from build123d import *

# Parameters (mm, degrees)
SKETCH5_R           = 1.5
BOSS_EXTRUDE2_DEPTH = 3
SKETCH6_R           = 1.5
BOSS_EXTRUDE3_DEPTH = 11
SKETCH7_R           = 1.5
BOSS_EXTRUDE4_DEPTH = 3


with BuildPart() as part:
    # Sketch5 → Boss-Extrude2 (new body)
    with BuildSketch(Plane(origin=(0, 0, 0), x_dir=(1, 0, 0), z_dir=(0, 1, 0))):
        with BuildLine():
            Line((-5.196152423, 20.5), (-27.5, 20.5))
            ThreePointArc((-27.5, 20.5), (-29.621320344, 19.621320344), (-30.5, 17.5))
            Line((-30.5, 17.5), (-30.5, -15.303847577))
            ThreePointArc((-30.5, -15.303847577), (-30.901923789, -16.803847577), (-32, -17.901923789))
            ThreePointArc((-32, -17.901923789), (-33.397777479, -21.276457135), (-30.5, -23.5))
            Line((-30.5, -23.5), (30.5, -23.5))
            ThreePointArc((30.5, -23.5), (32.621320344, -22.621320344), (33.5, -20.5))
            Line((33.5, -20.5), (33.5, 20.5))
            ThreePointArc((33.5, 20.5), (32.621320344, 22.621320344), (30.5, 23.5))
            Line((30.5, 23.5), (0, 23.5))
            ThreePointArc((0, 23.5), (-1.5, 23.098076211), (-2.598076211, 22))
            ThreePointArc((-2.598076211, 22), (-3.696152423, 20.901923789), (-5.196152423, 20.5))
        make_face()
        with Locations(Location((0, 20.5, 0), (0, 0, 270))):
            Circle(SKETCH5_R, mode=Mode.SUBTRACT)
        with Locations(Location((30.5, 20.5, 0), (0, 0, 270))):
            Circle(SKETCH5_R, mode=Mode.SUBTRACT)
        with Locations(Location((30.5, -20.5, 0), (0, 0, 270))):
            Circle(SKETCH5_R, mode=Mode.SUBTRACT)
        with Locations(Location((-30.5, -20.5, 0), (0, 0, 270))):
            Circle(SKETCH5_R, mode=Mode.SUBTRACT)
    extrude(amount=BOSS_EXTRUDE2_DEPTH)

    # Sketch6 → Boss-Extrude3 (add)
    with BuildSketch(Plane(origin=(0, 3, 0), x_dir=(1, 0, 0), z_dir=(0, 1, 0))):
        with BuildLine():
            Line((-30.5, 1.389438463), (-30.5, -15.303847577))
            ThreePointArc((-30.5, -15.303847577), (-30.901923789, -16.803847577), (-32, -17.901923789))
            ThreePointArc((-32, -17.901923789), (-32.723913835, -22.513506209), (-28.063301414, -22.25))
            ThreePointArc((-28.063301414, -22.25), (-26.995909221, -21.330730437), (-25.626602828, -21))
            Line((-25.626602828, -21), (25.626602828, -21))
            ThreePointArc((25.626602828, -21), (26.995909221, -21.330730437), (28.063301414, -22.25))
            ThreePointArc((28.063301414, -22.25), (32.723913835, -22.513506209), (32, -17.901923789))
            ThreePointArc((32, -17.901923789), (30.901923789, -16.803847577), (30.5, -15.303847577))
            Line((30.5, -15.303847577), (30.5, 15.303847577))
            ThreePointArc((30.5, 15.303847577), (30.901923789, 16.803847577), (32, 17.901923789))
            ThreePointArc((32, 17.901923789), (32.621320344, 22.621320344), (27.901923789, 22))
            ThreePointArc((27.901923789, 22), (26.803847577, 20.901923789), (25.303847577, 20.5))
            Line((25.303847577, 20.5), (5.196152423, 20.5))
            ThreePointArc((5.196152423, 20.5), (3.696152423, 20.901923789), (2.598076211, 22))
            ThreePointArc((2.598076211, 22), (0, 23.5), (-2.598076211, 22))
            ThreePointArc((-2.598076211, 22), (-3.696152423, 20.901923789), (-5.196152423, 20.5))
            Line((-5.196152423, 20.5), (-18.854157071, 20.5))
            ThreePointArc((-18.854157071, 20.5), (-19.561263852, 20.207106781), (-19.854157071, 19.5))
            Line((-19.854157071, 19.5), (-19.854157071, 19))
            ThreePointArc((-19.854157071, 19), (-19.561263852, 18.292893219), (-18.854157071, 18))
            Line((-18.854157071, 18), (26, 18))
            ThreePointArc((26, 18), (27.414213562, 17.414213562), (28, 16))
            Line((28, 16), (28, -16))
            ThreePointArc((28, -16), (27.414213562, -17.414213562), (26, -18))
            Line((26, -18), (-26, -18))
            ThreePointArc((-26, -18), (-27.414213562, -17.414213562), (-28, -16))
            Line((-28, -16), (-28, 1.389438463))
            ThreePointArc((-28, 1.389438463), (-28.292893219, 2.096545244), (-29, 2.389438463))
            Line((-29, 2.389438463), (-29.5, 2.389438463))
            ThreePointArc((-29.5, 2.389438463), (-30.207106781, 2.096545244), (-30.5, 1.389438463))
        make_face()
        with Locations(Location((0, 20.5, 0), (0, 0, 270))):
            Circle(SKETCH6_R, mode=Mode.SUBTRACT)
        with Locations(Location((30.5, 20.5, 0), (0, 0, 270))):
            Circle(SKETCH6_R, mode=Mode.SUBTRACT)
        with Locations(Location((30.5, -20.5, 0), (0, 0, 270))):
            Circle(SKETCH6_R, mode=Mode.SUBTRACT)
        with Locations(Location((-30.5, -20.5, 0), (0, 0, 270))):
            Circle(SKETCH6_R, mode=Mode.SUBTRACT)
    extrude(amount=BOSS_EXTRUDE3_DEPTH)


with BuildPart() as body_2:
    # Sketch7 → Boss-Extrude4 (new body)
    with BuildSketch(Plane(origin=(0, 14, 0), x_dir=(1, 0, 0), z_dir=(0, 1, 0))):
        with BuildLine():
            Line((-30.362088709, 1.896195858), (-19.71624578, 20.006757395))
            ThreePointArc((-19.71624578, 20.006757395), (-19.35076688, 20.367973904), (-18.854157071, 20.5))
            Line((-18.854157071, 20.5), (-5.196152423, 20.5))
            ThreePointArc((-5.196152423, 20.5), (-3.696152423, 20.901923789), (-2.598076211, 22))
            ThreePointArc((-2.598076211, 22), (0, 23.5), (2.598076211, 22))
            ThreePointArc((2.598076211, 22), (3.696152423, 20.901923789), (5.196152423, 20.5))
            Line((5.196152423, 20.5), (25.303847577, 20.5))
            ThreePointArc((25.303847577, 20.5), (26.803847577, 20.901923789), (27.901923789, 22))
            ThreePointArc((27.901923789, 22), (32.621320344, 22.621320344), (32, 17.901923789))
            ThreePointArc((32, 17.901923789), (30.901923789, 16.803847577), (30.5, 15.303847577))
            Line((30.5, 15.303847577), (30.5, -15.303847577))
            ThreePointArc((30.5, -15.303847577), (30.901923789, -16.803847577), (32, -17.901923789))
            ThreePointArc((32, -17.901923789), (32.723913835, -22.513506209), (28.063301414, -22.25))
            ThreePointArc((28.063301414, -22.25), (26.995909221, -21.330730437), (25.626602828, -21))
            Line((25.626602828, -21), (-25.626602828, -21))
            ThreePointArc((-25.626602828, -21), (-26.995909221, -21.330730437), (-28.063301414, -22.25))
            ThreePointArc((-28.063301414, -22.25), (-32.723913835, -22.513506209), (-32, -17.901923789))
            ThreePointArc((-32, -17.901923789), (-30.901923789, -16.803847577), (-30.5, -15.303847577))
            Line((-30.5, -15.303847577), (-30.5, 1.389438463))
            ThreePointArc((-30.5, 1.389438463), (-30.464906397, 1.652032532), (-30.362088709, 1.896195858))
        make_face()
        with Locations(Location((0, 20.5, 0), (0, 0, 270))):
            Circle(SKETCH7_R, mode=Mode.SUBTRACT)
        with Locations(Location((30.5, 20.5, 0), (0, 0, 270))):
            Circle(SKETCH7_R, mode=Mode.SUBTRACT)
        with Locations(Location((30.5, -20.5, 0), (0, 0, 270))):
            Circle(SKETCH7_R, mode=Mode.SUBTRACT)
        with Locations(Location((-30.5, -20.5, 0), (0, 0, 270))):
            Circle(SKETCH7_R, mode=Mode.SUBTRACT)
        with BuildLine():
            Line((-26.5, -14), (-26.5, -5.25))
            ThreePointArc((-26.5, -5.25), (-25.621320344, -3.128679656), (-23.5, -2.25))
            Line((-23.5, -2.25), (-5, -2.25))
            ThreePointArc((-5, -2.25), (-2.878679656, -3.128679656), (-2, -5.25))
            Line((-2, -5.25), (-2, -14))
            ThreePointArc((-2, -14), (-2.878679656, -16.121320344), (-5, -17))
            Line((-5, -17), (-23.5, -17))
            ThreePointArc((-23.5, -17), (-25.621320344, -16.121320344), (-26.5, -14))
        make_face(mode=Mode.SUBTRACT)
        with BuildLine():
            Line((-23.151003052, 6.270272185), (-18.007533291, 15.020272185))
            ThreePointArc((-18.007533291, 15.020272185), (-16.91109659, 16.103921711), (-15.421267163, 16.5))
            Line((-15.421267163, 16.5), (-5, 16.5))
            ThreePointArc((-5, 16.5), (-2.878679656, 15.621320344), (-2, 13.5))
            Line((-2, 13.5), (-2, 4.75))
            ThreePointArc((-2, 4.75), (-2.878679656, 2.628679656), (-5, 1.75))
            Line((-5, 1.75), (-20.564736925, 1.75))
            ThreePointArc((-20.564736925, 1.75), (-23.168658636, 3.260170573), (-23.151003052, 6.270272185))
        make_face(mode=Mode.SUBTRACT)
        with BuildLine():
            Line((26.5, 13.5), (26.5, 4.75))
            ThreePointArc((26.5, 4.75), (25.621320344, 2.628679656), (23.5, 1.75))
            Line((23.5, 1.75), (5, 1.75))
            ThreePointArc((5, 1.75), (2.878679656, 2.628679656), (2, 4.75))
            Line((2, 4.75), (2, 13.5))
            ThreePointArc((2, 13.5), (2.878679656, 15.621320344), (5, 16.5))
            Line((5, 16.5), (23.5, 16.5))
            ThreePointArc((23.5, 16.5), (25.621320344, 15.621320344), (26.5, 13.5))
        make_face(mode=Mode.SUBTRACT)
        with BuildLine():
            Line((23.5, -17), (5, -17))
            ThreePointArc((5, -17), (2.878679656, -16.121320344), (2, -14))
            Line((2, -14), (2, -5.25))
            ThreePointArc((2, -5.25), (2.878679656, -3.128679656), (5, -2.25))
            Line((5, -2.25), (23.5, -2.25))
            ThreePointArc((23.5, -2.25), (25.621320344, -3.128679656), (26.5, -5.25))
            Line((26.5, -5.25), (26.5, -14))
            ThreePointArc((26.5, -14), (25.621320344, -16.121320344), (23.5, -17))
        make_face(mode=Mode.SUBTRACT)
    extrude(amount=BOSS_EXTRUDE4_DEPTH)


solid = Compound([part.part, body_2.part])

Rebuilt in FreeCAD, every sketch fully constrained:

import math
import FreeCAD as App
import Part
import Sketcher

V = App.Vector
Q = App.Units.Quantity

doc = App.newDocument("Part")
body = doc.addObject("PartDesign::Body", "Body")

sketch1 = body.newObject("Sketcher::SketchObject", "Sketch")
sketch1.AttachmentSupport = (doc.getObject("XZ_Plane"), [""])
sketch1.MapMode = "FlatFace"
sketch1.addGeometry(Part.LineSegment(V(-5.2, -20.5, 0), V(-27.5, -20.5, 0)), False)
sketch1.addGeometry(Part.ArcOfCircle(Part.Circle(V(-27.5, -17.5, 0), V(0, 0, 1), 3), math.radians(180), math.radians(270)), False)
sketch1.addGeometry(Part.LineSegment(V(-30.5, -17.5, 0), V(-30.5, 15.3, 0)), False)
sketch1.addGeometry(Part.ArcOfCircle(Part.Circle(V(-33.5, 15.3, 0), V(0, 0, 1), 3), math.radians(0), math.radians(60)), False)
sketch1.addGeometry(Part.ArcOfCircle(Part.Circle(V(-30.5, 20.5, 0), V(0, 0, 1), 3), math.radians(90), math.radians(240)), False)
sketch1.addGeometry(Part.LineSegment(V(-30.5, 23.5, 0), V(30.5, 23.5, 0)), False)
sketch1.addGeometry(Part.ArcOfCircle(Part.Circle(V(30.5, 20.5, 0), V(0, 0, 1), 3), math.radians(0), math.radians(90)), False)
sketch1.addGeometry(Part.LineSegment(V(33.5, 20.5, 0), V(33.5, -20.5, 0)), False)
sketch1.addGeometry(Part.ArcOfCircle(Part.Circle(V(30.5, -20.5, 0), V(0, 0, 1), 3), math.radians(-90), math.radians(0)), False)
sketch1.addGeometry(Part.LineSegment(V(30.5, -23.5, 0), V(0, -23.5, 0)), False)
sketch1.addGeometry(Part.ArcOfCircle(Part.Circle(V(0, -20.5, 0), V(0, 0, 1), 3), math.radians(-150), math.radians(-90)), False)
sketch1.addGeometry(Part.ArcOfCircle(Part.Circle(V(-5.2, -23.5, 0), V(0, 0, 1), 3), math.radians(30), math.radians(90)), False)
sketch1.addGeometry(Part.Circle(V(-30.5, 20.5, 0), V(0, 0, 1), 1.5), False)
sketch1.addGeometry(Part.Circle(V(30.5, 20.5, 0), V(0, 0, 1), 1.5), False)
sketch1.addGeometry(Part.Circle(V(0, -20.5, 0), V(0, 0, 1), 1.5), False)
sketch1.addGeometry(Part.Circle(V(30.5, -20.5, 0), V(0, 0, 1), 1.5), False)
sketch1.addConstraint(Sketcher.Constraint("Tangent", 0, 2, 1, 2))
sketch1.addConstraint(Sketcher.Constraint("Tangent", 1, 1, 2, 1))
sketch1.addConstraint(Sketcher.Constraint("Tangent", 2, 2, 3, 1))
sketch1.addConstraint(Sketcher.Constraint("Tangent", 3, 2, 4, 2))
sketch1.addConstraint(Sketcher.Constraint("Tangent", 4, 1, 5, 1))
sketch1.addConstraint(Sketcher.Constraint("Tangent", 5, 2, 6, 2))
sketch1.addConstraint(Sketcher.Constraint("Tangent", 6, 1, 7, 1))
sketch1.addConstraint(Sketcher.Constraint("Tangent", 7, 2, 8, 2))
sketch1.addConstraint(Sketcher.Constraint("Tangent", 8, 1, 9, 1))
sketch1.addConstraint(Sketcher.Constraint("Tangent", 9, 2, 10, 2))
sketch1.addConstraint(Sketcher.Constraint("Tangent", 10, 1, 11, 1))
sketch1.addConstraint(Sketcher.Constraint("Tangent", 11, 2, 0, 1))
sketch1.addConstraint(Sketcher.Constraint("Horizontal", 0))
sketch1.addConstraint(Sketcher.Constraint("Vertical", 2))
sketch1.addConstraint(Sketcher.Constraint("Horizontal", 5))
sketch1.addConstraint(Sketcher.Constraint("Vertical", 7))
sketch1.addConstraint(Sketcher.Constraint("Horizontal", 9))
sketch1.addConstraint(Sketcher.Constraint("Coincident", 12, 3, 4, 3))
sketch1.addConstraint(Sketcher.Constraint("Coincident", 13, 3, 6, 3))
sketch1.addConstraint(Sketcher.Constraint("Coincident", 14, 3, 10, 3))
sketch1.addConstraint(Sketcher.Constraint("Coincident", 15, 3, 8, 3))
sketch1.addConstraint(Sketcher.Constraint("Equal", 1, 3))
sketch1.addConstraint(Sketcher.Constraint("Equal", 3, 4))
sketch1.addConstraint(Sketcher.Constraint("Equal", 4, 6))
sketch1.addConstraint(Sketcher.Constraint("Equal", 6, 8))
sketch1.addConstraint(Sketcher.Constraint("Equal", 8, 10))
sketch1.addConstraint(Sketcher.Constraint("Equal", 10, 11))
sketch1.addConstraint(Sketcher.Constraint("Equal", 12, 13))
sketch1.addConstraint(Sketcher.Constraint("Equal", 13, 14))
sketch1.addConstraint(Sketcher.Constraint("Equal", 14, 15))
sketch1.addConstraint(Sketcher.Constraint("Symmetric", 4, 3, 8, 3, -1, 1))
sketch1.addConstraint(Sketcher.Constraint("PointOnObject", 10, 3, -2))
sketch1.addConstraint(Sketcher.Constraint("Horizontal", 15, 3, 0, 2))
sketch1.addConstraint(Sketcher.Constraint("Vertical", 12, 3, 1, 1))
sketch1.addConstraint(Sketcher.Constraint("Diameter", 12, Q("3 mm")))
sketch1.addConstraint(Sketcher.Constraint("Radius", 1, Q("3 mm")))
sketch1.addConstraint(Sketcher.Constraint("DistanceX", 5, 1, 5, 2, Q("61 mm")))
sketch1.addConstraint(Sketcher.Constraint("DistanceY", 7, 2, 7, 1, Q("41 mm")))
pad1 = body.newObject("PartDesign::Pad", "Pad")
pad1.Profile = sketch1
pad1.Length = 3
pad1.Reversed = True

sketch2 = body.newObject("Sketcher::SketchObject", "Sketch001")
sketch2.AttachmentSupport = (doc.getObject("XZ_Plane"), [""])
sketch2.MapMode = "FlatFace"
sketch2.AttachmentOffset = App.Placement(V(0, 0, -3), App.Rotation())
sketch2.addGeometry(Part.LineSegment(V(-30.5, -1.4, 0), V(-30.5, 15.3, 0)), False)
sketch2.addGeometry(Part.ArcOfCircle(Part.Circle(V(-33.5, 15.3, 0), V(0, 0, 1), 3), math.radians(0), math.radians(60)), False)
sketch2.addGeometry(Part.ArcOfCircle(Part.Circle(V(-30.5, 20.5, 0), V(0, 0, 1), 3), math.radians(36), math.radians(240)), False)
sketch2.addGeometry(Part.ArcOfCircle(Part.Circle(V(-25.6, 24, 0), V(0, 0, 1), 3), math.radians(-144), math.radians(-90)), False)
sketch2.addGeometry(Part.LineSegment(V(-25.6, 21, 0), V(25.6, 21, 0)), False)
sketch2.addGeometry(Part.ArcOfCircle(Part.Circle(V(25.6, 24, 0), V(0, 0, 1), 3), math.radians(-90), math.radians(-36)), False)
sketch2.addGeometry(Part.ArcOfCircle(Part.Circle(V(30.5, 20.5, 0), V(0, 0, 1), 3), math.radians(-60), math.radians(144)), False)
sketch2.addGeometry(Part.ArcOfCircle(Part.Circle(V(33.5, 15.3, 0), V(0, 0, 1), 3), math.radians(120), math.radians(180)), False)
sketch2.addGeometry(Part.LineSegment(V(30.5, 15.3, 0), V(30.5, -15.3, 0)), False)
sketch2.addGeometry(Part.ArcOfCircle(Part.Circle(V(33.5, -15.3, 0), V(0, 0, 1), 3), math.radians(-180), math.radians(-120)), False)
sketch2.addGeometry(Part.ArcOfCircle(Part.Circle(V(30.5, -20.5, 0), V(0, 0, 1), 3), math.radians(-150), math.radians(60)), False)
sketch2.addGeometry(Part.ArcOfCircle(Part.Circle(V(25.3, -23.5, 0), V(0, 0, 1), 3), math.radians(30), math.radians(90)), False)
sketch2.addGeometry(Part.LineSegment(V(25.3, -20.5, 0), V(5.2, -20.5, 0)), False)
sketch2.addGeometry(Part.ArcOfCircle(Part.Circle(V(5.2, -23.5, 0), V(0, 0, 1), 3), math.radians(90), math.radians(150)), False)
sketch2.addGeometry(Part.ArcOfCircle(Part.Circle(V(0, -20.5, 0), V(0, 0, 1), 3), math.radians(-150), math.radians(-30)), False)
sketch2.addGeometry(Part.ArcOfCircle(Part.Circle(V(-5.2, -23.5, 0), V(0, 0, 1), 3), math.radians(30), math.radians(90)), False)
sketch2.addGeometry(Part.LineSegment(V(-5.2, -20.5, 0), V(-18.9, -20.5, 0)), False)
sketch2.addGeometry(Part.ArcOfCircle(Part.Circle(V(-18.9, -19.5, 0), V(0, 0, 1), 1), math.radians(-180), math.radians(-90)), False)
sketch2.addGeometry(Part.LineSegment(V(-19.9, -19.5, 0), V(-19.9, -19, 0)), False)
sketch2.addGeometry(Part.ArcOfCircle(Part.Circle(V(-18.9, -19, 0), V(0, 0, 1), 1), math.radians(90), math.radians(180)), False)
sketch2.addGeometry(Part.LineSegment(V(-18.9, -18, 0), V(26, -18, 0)), False)
sketch2.addGeometry(Part.ArcOfCircle(Part.Circle(V(26, -16, 0), V(0, 0, 1), 2), math.radians(-90), math.radians(0)), False)
sketch2.addGeometry(Part.LineSegment(V(28, -16, 0), V(28, 16, 0)), False)
sketch2.addGeometry(Part.ArcOfCircle(Part.Circle(V(26, 16, 0), V(0, 0, 1), 2), math.radians(0), math.radians(90)), False)
sketch2.addGeometry(Part.LineSegment(V(26, 18, 0), V(-26, 18, 0)), False)
sketch2.addGeometry(Part.ArcOfCircle(Part.Circle(V(-26, 16, 0), V(0, 0, 1), 2), math.radians(90), math.radians(180)), False)
sketch2.addGeometry(Part.LineSegment(V(-28, 16, 0), V(-28, -1.4, 0)), False)
sketch2.addGeometry(Part.ArcOfCircle(Part.Circle(V(-29, -1.4, 0), V(0, 0, 1), 1), math.radians(-90), math.radians(0)), False)
sketch2.addGeometry(Part.LineSegment(V(-29, -2.4, 0), V(-29.5, -2.4, 0)), False)
sketch2.addGeometry(Part.ArcOfCircle(Part.Circle(V(-29.5, -1.4, 0), V(0, 0, 1), 1), math.radians(-180), math.radians(-90)), False)
sketch2.addGeometry(Part.Circle(V(-30.5, 20.5, 0), V(0, 0, 1), 1.5), False)
sketch2.addGeometry(Part.Circle(V(30.5, 20.5, 0), V(0, 0, 1), 1.5), False)
sketch2.addGeometry(Part.Circle(V(0, -20.5, 0), V(0, 0, 1), 1.5), False)
sketch2.addGeometry(Part.Circle(V(30.5, -20.5, 0), V(0, 0, 1), 1.5), False)
sketch2.addConstraint(Sketcher.Constraint("Tangent", 0, 2, 1, 1))
sketch2.addConstraint(Sketcher.Constraint("Tangent", 1, 2, 2, 2))
sketch2.addConstraint(Sketcher.Constraint("Tangent", 2, 1, 3, 1))
sketch2.addConstraint(Sketcher.Constraint("Tangent", 3, 2, 4, 1))
sketch2.addConstraint(Sketcher.Constraint("Tangent", 4, 2, 5, 1))
sketch2.addConstraint(Sketcher.Constraint("Tangent", 5, 2, 6, 2))
sketch2.addConstraint(Sketcher.Constraint("Tangent", 6, 1, 7, 1))
sketch2.addConstraint(Sketcher.Constraint("Tangent", 7, 2, 8, 1))
sketch2.addConstraint(Sketcher.Constraint("Tangent", 8, 2, 9, 1))
sketch2.addConstraint(Sketcher.Constraint("Tangent", 9, 2, 10, 2))
sketch2.addConstraint(Sketcher.Constraint("Tangent", 10, 1, 11, 1))
sketch2.addConstraint(Sketcher.Constraint("Tangent", 11, 2, 12, 1))
sketch2.addConstraint(Sketcher.Constraint("Tangent", 12, 2, 13, 1))
sketch2.addConstraint(Sketcher.Constraint("Tangent", 13, 2, 14, 2))
sketch2.addConstraint(Sketcher.Constraint("Tangent", 14, 1, 15, 1))
sketch2.addConstraint(Sketcher.Constraint("Tangent", 15, 2, 16, 1))
sketch2.addConstraint(Sketcher.Constraint("Tangent", 16, 2, 17, 2))
sketch2.addConstraint(Sketcher.Constraint("Tangent", 17, 1, 18, 1))
sketch2.addConstraint(Sketcher.Constraint("Tangent", 18, 2, 19, 2))
sketch2.addConstraint(Sketcher.Constraint("Tangent", 19, 1, 20, 1))
sketch2.addConstraint(Sketcher.Constraint("Tangent", 20, 2, 21, 1))
sketch2.addConstraint(Sketcher.Constraint("Tangent", 21, 2, 22, 1))
sketch2.addConstraint(Sketcher.Constraint("Tangent", 22, 2, 23, 1))
sketch2.addConstraint(Sketcher.Constraint("Tangent", 23, 2, 24, 1))
sketch2.addConstraint(Sketcher.Constraint("Tangent", 24, 2, 25, 1))
sketch2.addConstraint(Sketcher.Constraint("Tangent", 25, 2, 26, 1))
sketch2.addConstraint(Sketcher.Constraint("Tangent", 26, 2, 27, 2))
sketch2.addConstraint(Sketcher.Constraint("Tangent", 27, 1, 28, 1))
sketch2.addConstraint(Sketcher.Constraint("Tangent", 28, 2, 29, 2))
sketch2.addConstraint(Sketcher.Constraint("Tangent", 29, 1, 0, 1))
sketch2.addConstraint(Sketcher.Constraint("Vertical", 0))
sketch2.addConstraint(Sketcher.Constraint("Horizontal", 4))
sketch2.addConstraint(Sketcher.Constraint("Vertical", 8))
sketch2.addConstraint(Sketcher.Constraint("Horizontal", 12))
sketch2.addConstraint(Sketcher.Constraint("Horizontal", 16))
sketch2.addConstraint(Sketcher.Constraint("Vertical", 18))
sketch2.addConstraint(Sketcher.Constraint("Horizontal", 20))
sketch2.addConstraint(Sketcher.Constraint("Vertical", 22))
sketch2.addConstraint(Sketcher.Constraint("Horizontal", 24))
sketch2.addConstraint(Sketcher.Constraint("Vertical", 26))
sketch2.addConstraint(Sketcher.Constraint("Horizontal", 28))
sketch2.addConstraint(Sketcher.Constraint("Coincident", 30, 3, 2, 3))
sketch2.addConstraint(Sketcher.Constraint("Coincident", 31, 3, 6, 3))
sketch2.addConstraint(Sketcher.Constraint("Coincident", 32, 3, 14, 3))
sketch2.addConstraint(Sketcher.Constraint("Coincident", 33, 3, 10, 3))
sketch2.addConstraint(Sketcher.Constraint("Equal", 1, 2))
sketch2.addConstraint(Sketcher.Constraint("Equal", 2, 3))
sketch2.addConstraint(Sketcher.Constraint("Equal", 3, 5))
sketch2.addConstraint(Sketcher.Constraint("Equal", 5, 6))
sketch2.addConstraint(Sketcher.Constraint("Equal", 6, 7))
sketch2.addConstraint(Sketcher.Constraint("Equal", 7, 9))
sketch2.addConstraint(Sketcher.Constraint("Equal", 9, 10))
sketch2.addConstraint(Sketcher.Constraint("Equal", 10, 11))
sketch2.addConstraint(Sketcher.Constraint("Equal", 11, 13))
sketch2.addConstraint(Sketcher.Constraint("Equal", 13, 14))
sketch2.addConstraint(Sketcher.Constraint("Equal", 14, 15))
sketch2.addConstraint(Sketcher.Constraint("Equal", 17, 19))
sketch2.addConstraint(Sketcher.Constraint("Equal", 21, 23))
sketch2.addConstraint(Sketcher.Constraint("Equal", 23, 25))
sketch2.addConstraint(Sketcher.Constraint("Equal", 19, 27))
sketch2.addConstraint(Sketcher.Constraint("Equal", 27, 29))
sketch2.addConstraint(Sketcher.Constraint("Equal", 30, 31))
sketch2.addConstraint(Sketcher.Constraint("Equal", 31, 32))
sketch2.addConstraint(Sketcher.Constraint("Equal", 32, 33))
sketch2.addConstraint(Sketcher.Constraint("Symmetric", 1, 3, 9, 3, -1, 1))
sketch2.addConstraint(Sketcher.Constraint("Symmetric", 21, 3, 25, 3, -1, 1))
sketch2.addConstraint(Sketcher.Constraint("Symmetric", 2, 3, 6, 3, -2))
sketch2.addConstraint(Sketcher.Constraint("Symmetric", 13, 3, 15, 3, -2))
sketch2.addConstraint(Sketcher.Constraint("Horizontal", 10, 3, 14, 3))
sketch2.addConstraint(Sketcher.Constraint("Horizontal", 33, 3, 11, 2))
sketch2.addConstraint(Sketcher.Constraint("Vertical", 6, 3, 10, 3))
sketch2.addConstraint(Sketcher.Constraint("Vertical", 30, 3, 0, 2))
sketch2.addConstraint(Sketcher.Constraint("Equal", 28, 18))
sketch2.addConstraint(Sketcher.Constraint("Diameter", 30, Q("3 mm")))
sketch2.addConstraint(Sketcher.Constraint("Radius", 1, Q("3 mm")))
sketch2.addConstraint(Sketcher.Constraint("Radius", 17, Q("1 mm")))
sketch2.addConstraint(Sketcher.Constraint("Radius", 21, Q("2 mm")))
sketch2.addConstraint(Sketcher.Constraint("DistanceX", 24, 2, 24, 1, Q("52 mm")))
sketch2.addConstraint(Sketcher.Constraint("DistanceY", 22, 1, 22, 2, Q("32 mm")))
sketch2.addConstraint(Sketcher.Constraint("DistanceX", 28, 2, 28, 1, Q("0.5 mm")))
sketch2.addConstraint(Sketcher.Constraint("DistanceY", -1, 1, 3, 3, Q("24 mm")))
sketch2.addConstraint(Sketcher.Constraint("DistanceY", 26, 2, 26, 1, Q("17.389438 mm")))
sketch2.addConstraint(Sketcher.Constraint("DistanceX", 16, 2, 16, 1, Q("13.658005 mm")))
pad2 = body.newObject("PartDesign::Pad", "Pad001")
pad2.Profile = sketch2
pad2.Length = 11
pad2.Reversed = True
body2 = doc.addObject("PartDesign::Body", "Body001")

sketch3 = body2.newObject("Sketcher::SketchObject", "Sketch002")
sketch3.AttachmentSupport = (doc.getObject("XZ_Plane001"), [""])
sketch3.MapMode = "FlatFace"
sketch3.AttachmentOffset = App.Placement(V(0, 0, -14), App.Rotation())
sketch3.addGeometry(Part.LineSegment(V(-19.7, -20, 0), V(-30.4, -1.9, 0)), False)
sketch3.addGeometry(Part.ArcOfCircle(Part.Circle(V(-29.5, -1.4, 0), V(0, 0, 1), 1), math.radians(180), math.radians(210)), False)
sketch3.addGeometry(Part.LineSegment(V(-30.5, -1.4, 0), V(-30.5, 15.3, 0)), False)
sketch3.addGeometry(Part.ArcOfCircle(Part.Circle(V(-33.5, 15.3, 0), V(0, 0, 1), 3), math.radians(0), math.radians(60)), False)
sketch3.addGeometry(Part.ArcOfCircle(Part.Circle(V(-30.5, 20.5, 0), V(0, 0, 1), 3), math.radians(36), math.radians(240)), False)
sketch3.addGeometry(Part.ArcOfCircle(Part.Circle(V(-25.6, 24, 0), V(0, 0, 1), 3), math.radians(-144), math.radians(-90)), False)
sketch3.addGeometry(Part.LineSegment(V(-25.6, 21, 0), V(25.6, 21, 0)), False)
sketch3.addGeometry(Part.ArcOfCircle(Part.Circle(V(25.6, 24, 0), V(0, 0, 1), 3), math.radians(-90), math.radians(-36)), False)
sketch3.addGeometry(Part.ArcOfCircle(Part.Circle(V(30.5, 20.5, 0), V(0, 0, 1), 3), math.radians(-60), math.radians(144)), False)
sketch3.addGeometry(Part.ArcOfCircle(Part.Circle(V(33.5, 15.3, 0), V(0, 0, 1), 3), math.radians(120), math.radians(180)), False)
sketch3.addGeometry(Part.LineSegment(V(30.5, 15.3, 0), V(30.5, -15.3, 0)), False)
sketch3.addGeometry(Part.ArcOfCircle(Part.Circle(V(33.5, -15.3, 0), V(0, 0, 1), 3), math.radians(-180), math.radians(-120)), False)
sketch3.addGeometry(Part.ArcOfCircle(Part.Circle(V(30.5, -20.5, 0), V(0, 0, 1), 3), math.radians(-150), math.radians(60)), False)
sketch3.addGeometry(Part.ArcOfCircle(Part.Circle(V(25.3, -23.5, 0), V(0, 0, 1), 3), math.radians(30), math.radians(90)), False)
sketch3.addGeometry(Part.LineSegment(V(25.3, -20.5, 0), V(5.2, -20.5, 0)), False)
sketch3.addGeometry(Part.ArcOfCircle(Part.Circle(V(5.2, -23.5, 0), V(0, 0, 1), 3), math.radians(90), math.radians(150)), False)
sketch3.addGeometry(Part.ArcOfCircle(Part.Circle(V(0, -20.5, 0), V(0, 0, 1), 3), math.radians(-150), math.radians(-30)), False)
sketch3.addGeometry(Part.ArcOfCircle(Part.Circle(V(-5.2, -23.5, 0), V(0, 0, 1), 3), math.radians(30), math.radians(90)), False)
sketch3.addGeometry(Part.LineSegment(V(-5.2, -20.5, 0), V(-18.9, -20.5, 0)), False)
sketch3.addGeometry(Part.ArcOfCircle(Part.Circle(V(-18.9, -19.5, 0), V(0, 0, 1), 1), math.radians(-150), math.radians(-90)), False)
sketch3.addGeometry(Part.Circle(V(30.5, 20.5, 0), V(0, 0, 1), 1.5), False)
sketch3.addGeometry(Part.LineSegment(V(23.5, 17, 0), V(5, 17, 0)), False)
sketch3.addGeometry(Part.ArcOfCircle(Part.Circle(V(5, 14, 0), V(0, 0, 1), 3), math.radians(90), math.radians(180)), False)
sketch3.addGeometry(Part.LineSegment(V(2, 14, 0), V(2, 5.2, 0)), False)
sketch3.addGeometry(Part.ArcOfCircle(Part.Circle(V(5, 5.2, 0), V(0, 0, 1), 3), math.radians(180), math.radians(270)), False)
sketch3.addGeometry(Part.LineSegment(V(5, 2.2, 0), V(23.5, 2.2, 0)), False)
sketch3.addGeometry(Part.ArcOfCircle(Part.Circle(V(23.5, 5.2, 0), V(0, 0, 1), 3), math.radians(-90), math.radians(0)), False)
sketch3.addGeometry(Part.LineSegment(V(26.5, 5.2, 0), V(26.5, 14, 0)), False)
sketch3.addGeometry(Part.ArcOfCircle(Part.Circle(V(23.5, 14, 0), V(0, 0, 1), 3), math.radians(0), math.radians(90)), False)
sketch3.addGeometry(Part.Circle(V(-30.5, 20.5, 0), V(0, 0, 1), 1.5), False)
sketch3.addGeometry(Part.LineSegment(V(-26.5, 14, 0), V(-26.5, 5.2, 0)), False)
sketch3.addGeometry(Part.ArcOfCircle(Part.Circle(V(-23.5, 5.2, 0), V(0, 0, 1), 3), math.radians(180), math.radians(270)), False)
sketch3.addGeometry(Part.LineSegment(V(-23.5, 2.2, 0), V(-5, 2.2, 0)), False)
sketch3.addGeometry(Part.ArcOfCircle(Part.Circle(V(-5, 5.2, 0), V(0, 0, 1), 3), math.radians(-90), math.radians(0)), False)
sketch3.addGeometry(Part.LineSegment(V(-2, 5.2, 0), V(-2, 14, 0)), False)
sketch3.addGeometry(Part.ArcOfCircle(Part.Circle(V(-5, 14, 0), V(0, 0, 1), 3), math.radians(0), math.radians(90)), False)
sketch3.addGeometry(Part.LineSegment(V(-5, 17, 0), V(-23.5, 17, 0)), False)
sketch3.addGeometry(Part.ArcOfCircle(Part.Circle(V(-23.5, 14, 0), V(0, 0, 1), 3), math.radians(90), math.radians(180)), False)
sketch3.addGeometry(Part.LineSegment(V(26.5, -13.5, 0), V(26.5, -4.8, 0)), False)
sketch3.addGeometry(Part.ArcOfCircle(Part.Circle(V(23.5, -4.7, 0), V(0, 0, 1), 3), math.radians(0), math.radians(90)), False)
sketch3.addGeometry(Part.LineSegment(V(23.5, -1.8, 0), V(5, -1.8, 0)), False)
sketch3.addGeometry(Part.ArcOfCircle(Part.Circle(V(5, -4.7, 0), V(0, 0, 1), 3), math.radians(90), math.radians(180)), False)
sketch3.addGeometry(Part.LineSegment(V(2, -4.8, 0), V(2, -13.5, 0)), False)
sketch3.addGeometry(Part.ArcOfCircle(Part.Circle(V(5, -13.5, 0), V(0, 0, 1), 3), math.radians(180), math.radians(270)), False)
sketch3.addGeometry(Part.LineSegment(V(5, -16.5, 0), V(23.5, -16.5, 0)), False)
sketch3.addGeometry(Part.ArcOfCircle(Part.Circle(V(23.5, -13.5, 0), V(0, 0, 1), 3), math.radians(-90), math.radians(0)), False)
sketch3.addGeometry(Part.Circle(V(30.5, -20.5, 0), V(0, 0, 1), 1.5), False)
sketch3.addGeometry(Part.LineSegment(V(-23.2, -6.3, 0), V(-18, -15, 0)), False)
sketch3.addGeometry(Part.ArcOfCircle(Part.Circle(V(-15.4, -13.5, 0), V(0, 0, 1), 3), math.radians(-150), math.radians(-90)), False)
sketch3.addGeometry(Part.LineSegment(V(-15.4, -16.5, 0), V(-5, -16.5, 0)), False)
sketch3.addGeometry(Part.ArcOfCircle(Part.Circle(V(-5, -13.5, 0), V(0, 0, 1), 3), math.radians(-90), math.radians(0)), False)
sketch3.addGeometry(Part.LineSegment(V(-2, -13.5, 0), V(-2, -4.8, 0)), False)
sketch3.addGeometry(Part.ArcOfCircle(Part.Circle(V(-5, -4.7, 0), V(0, 0, 1), 3), math.radians(0), math.radians(90)), False)
sketch3.addGeometry(Part.LineSegment(V(-5, -1.8, 0), V(-20.6, -1.8, 0)), False)
sketch3.addGeometry(Part.ArcOfCircle(Part.Circle(V(-20.6, -4.8, 0), V(0, 0, 1), 3), math.radians(90), math.radians(210)), False)
sketch3.addGeometry(Part.Circle(V(0, -20.5, 0), V(0, 0, 1), 1.5), False)
sketch3.addConstraint(Sketcher.Constraint("Tangent", 0, 2, 1, 2))
sketch3.addConstraint(Sketcher.Constraint("Tangent", 1, 1, 2, 1))
sketch3.addConstraint(Sketcher.Constraint("Tangent", 2, 2, 3, 1))
sketch3.addConstraint(Sketcher.Constraint("Tangent", 3, 2, 4, 2))
sketch3.addConstraint(Sketcher.Constraint("Tangent", 4, 1, 5, 1))
sketch3.addConstraint(Sketcher.Constraint("Tangent", 5, 2, 6, 1))
sketch3.addConstraint(Sketcher.Constraint("Tangent", 6, 2, 7, 1))
sketch3.addConstraint(Sketcher.Constraint("Tangent", 7, 2, 8, 2))
sketch3.addConstraint(Sketcher.Constraint("Tangent", 8, 1, 9, 1))
sketch3.addConstraint(Sketcher.Constraint("Tangent", 9, 2, 10, 1))
sketch3.addConstraint(Sketcher.Constraint("Tangent", 10, 2, 11, 1))
sketch3.addConstraint(Sketcher.Constraint("Tangent", 11, 2, 12, 2))
sketch3.addConstraint(Sketcher.Constraint("Tangent", 12, 1, 13, 1))
sketch3.addConstraint(Sketcher.Constraint("Tangent", 13, 2, 14, 1))
sketch3.addConstraint(Sketcher.Constraint("Tangent", 14, 2, 15, 1))
sketch3.addConstraint(Sketcher.Constraint("Tangent", 15, 2, 16, 2))
sketch3.addConstraint(Sketcher.Constraint("Tangent", 16, 1, 17, 1))
sketch3.addConstraint(Sketcher.Constraint("Tangent", 17, 2, 18, 1))
sketch3.addConstraint(Sketcher.Constraint("Tangent", 18, 2, 19, 2))
sketch3.addConstraint(Sketcher.Constraint("Tangent", 19, 1, 0, 1))
sketch3.addConstraint(Sketcher.Constraint("Tangent", 21, 2, 22, 1))
sketch3.addConstraint(Sketcher.Constraint("Tangent", 22, 2, 23, 1))
sketch3.addConstraint(Sketcher.Constraint("Tangent", 23, 2, 24, 1))
sketch3.addConstraint(Sketcher.Constraint("Tangent", 24, 2, 25, 1))
sketch3.addConstraint(Sketcher.Constraint("Tangent", 25, 2, 26, 1))
sketch3.addConstraint(Sketcher.Constraint("Tangent", 26, 2, 27, 1))
sketch3.addConstraint(Sketcher.Constraint("Tangent", 27, 2, 28, 1))
sketch3.addConstraint(Sketcher.Constraint("Tangent", 28, 2, 21, 1))
sketch3.addConstraint(Sketcher.Constraint("Tangent", 30, 2, 31, 1))
sketch3.addConstraint(Sketcher.Constraint("Tangent", 31, 2, 32, 1))
sketch3.addConstraint(Sketcher.Constraint("Tangent", 32, 2, 33, 1))
sketch3.addConstraint(Sketcher.Constraint("Tangent", 33, 2, 34, 1))
sketch3.addConstraint(Sketcher.Constraint("Tangent", 34, 2, 35, 1))
sketch3.addConstraint(Sketcher.Constraint("Tangent", 35, 2, 36, 1))
sketch3.addConstraint(Sketcher.Constraint("Tangent", 36, 2, 37, 1))
sketch3.addConstraint(Sketcher.Constraint("Tangent", 37, 2, 30, 1))
sketch3.addConstraint(Sketcher.Constraint("Tangent", 38, 2, 39, 1))
sketch3.addConstraint(Sketcher.Constraint("Tangent", 39, 2, 40, 1))
sketch3.addConstraint(Sketcher.Constraint("Tangent", 40, 2, 41, 1))
sketch3.addConstraint(Sketcher.Constraint("Tangent", 41, 2, 42, 1))
sketch3.addConstraint(Sketcher.Constraint("Tangent", 42, 2, 43, 1))
sketch3.addConstraint(Sketcher.Constraint("Tangent", 43, 2, 44, 1))
sketch3.addConstraint(Sketcher.Constraint("Tangent", 44, 2, 45, 1))
sketch3.addConstraint(Sketcher.Constraint("Tangent", 45, 2, 38, 1))
sketch3.addConstraint(Sketcher.Constraint("Tangent", 47, 2, 48, 1))
sketch3.addConstraint(Sketcher.Constraint("Tangent", 48, 2, 49, 1))
sketch3.addConstraint(Sketcher.Constraint("Tangent", 49, 2, 50, 1))
sketch3.addConstraint(Sketcher.Constraint("Tangent", 50, 2, 51, 1))
sketch3.addConstraint(Sketcher.Constraint("Tangent", 51, 2, 52, 1))
sketch3.addConstraint(Sketcher.Constraint("Tangent", 52, 2, 53, 1))
sketch3.addConstraint(Sketcher.Constraint("Tangent", 53, 2, 54, 1))
sketch3.addConstraint(Sketcher.Constraint("Tangent", 54, 2, 47, 1))
sketch3.addConstraint(Sketcher.Constraint("Vertical", 2))
sketch3.addConstraint(Sketcher.Constraint("Horizontal", 6))
sketch3.addConstraint(Sketcher.Constraint("Vertical", 10))
sketch3.addConstraint(Sketcher.Constraint("Horizontal", 14))
sketch3.addConstraint(Sketcher.Constraint("Horizontal", 18))
sketch3.addConstraint(Sketcher.Constraint("Horizontal", 21))
sketch3.addConstraint(Sketcher.Constraint("Vertical", 23))
sketch3.addConstraint(Sketcher.Constraint("Horizontal", 25))
sketch3.addConstraint(Sketcher.Constraint("Vertical", 27))
sketch3.addConstraint(Sketcher.Constraint("Vertical", 30))
sketch3.addConstraint(Sketcher.Constraint("Horizontal", 32))
sketch3.addConstraint(Sketcher.Constraint("Vertical", 34))
sketch3.addConstraint(Sketcher.Constraint("Horizontal", 36))
sketch3.addConstraint(Sketcher.Constraint("Vertical", 38))
sketch3.addConstraint(Sketcher.Constraint("Horizontal", 40))
sketch3.addConstraint(Sketcher.Constraint("Vertical", 42))
sketch3.addConstraint(Sketcher.Constraint("Horizontal", 44))
sketch3.addConstraint(Sketcher.Constraint("Horizontal", 49))
sketch3.addConstraint(Sketcher.Constraint("Vertical", 51))
sketch3.addConstraint(Sketcher.Constraint("Horizontal", 53))
sketch3.addConstraint(Sketcher.Constraint("Coincident", 20, 3, 8, 3))
sketch3.addConstraint(Sketcher.Constraint("Coincident", 29, 3, 4, 3))
sketch3.addConstraint(Sketcher.Constraint("Coincident", 46, 3, 12, 3))
sketch3.addConstraint(Sketcher.Constraint("Coincident", 55, 3, 16, 3))
sketch3.addConstraint(Sketcher.Constraint("Equal", 3, 4))
sketch3.addConstraint(Sketcher.Constraint("Equal", 4, 5))
sketch3.addConstraint(Sketcher.Constraint("Equal", 5, 7))
sketch3.addConstraint(Sketcher.Constraint("Equal", 7, 8))
sketch3.addConstraint(Sketcher.Constraint("Equal", 8, 9))
sketch3.addConstraint(Sketcher.Constraint("Equal", 9, 11))
sketch3.addConstraint(Sketcher.Constraint("Equal", 11, 12))
sketch3.addConstraint(Sketcher.Constraint("Equal", 12, 13))
sketch3.addConstraint(Sketcher.Constraint("Equal", 13, 15))
sketch3.addConstraint(Sketcher.Constraint("Equal", 15, 16))
sketch3.addConstraint(Sketcher.Constraint("Equal", 16, 17))
sketch3.addConstraint(Sketcher.Constraint("Equal", 1, 19))
sketch3.addConstraint(Sketcher.Constraint("Equal", 17, 22))
sketch3.addConstraint(Sketcher.Constraint("Equal", 22, 24))
sketch3.addConstraint(Sketcher.Constraint("Equal", 24, 26))
sketch3.addConstraint(Sketcher.Constraint("Equal", 26, 28))
sketch3.addConstraint(Sketcher.Constraint("Equal", 20, 29))
sketch3.addConstraint(Sketcher.Constraint("Equal", 28, 31))
sketch3.addConstraint(Sketcher.Constraint("Equal", 31, 33))
sketch3.addConstraint(Sketcher.Constraint("Equal", 33, 35))
sketch3.addConstraint(Sketcher.Constraint("Equal", 35, 37))
sketch3.addConstraint(Sketcher.Constraint("Equal", 37, 39))
sketch3.addConstraint(Sketcher.Constraint("Equal", 39, 41))
sketch3.addConstraint(Sketcher.Constraint("Equal", 41, 43))
sketch3.addConstraint(Sketcher.Constraint("Equal", 43, 45))
sketch3.addConstraint(Sketcher.Constraint("Equal", 29, 46))
sketch3.addConstraint(Sketcher.Constraint("Equal", 45, 48))
sketch3.addConstraint(Sketcher.Constraint("Equal", 48, 50))
sketch3.addConstraint(Sketcher.Constraint("Equal", 50, 52))
sketch3.addConstraint(Sketcher.Constraint("Equal", 52, 54))
sketch3.addConstraint(Sketcher.Constraint("Equal", 46, 55))
sketch3.addConstraint(Sketcher.Constraint("Symmetric", 3, 3, 11, 3, -1, 1))
sketch3.addConstraint(Sketcher.Constraint("Symmetric", 4, 3, 8, 3, -2))
sketch3.addConstraint(Sketcher.Constraint("Symmetric", 15, 3, 17, 3, -2))
sketch3.addConstraint(Sketcher.Constraint("Symmetric", 26, 3, 31, 3, -2))
sketch3.addConstraint(Sketcher.Constraint("Symmetric", 22, 3, 35, 3, -2))
sketch3.addConstraint(Sketcher.Constraint("Symmetric", 43, 3, 50, 3, -2))
sketch3.addConstraint(Sketcher.Constraint("Parallel", 0, 47))
sketch3.addConstraint(Sketcher.Constraint("Horizontal", 12, 3, 16, 3))
sketch3.addConstraint(Sketcher.Constraint("Horizontal", 41, 3, 52, 3))
sketch3.addConstraint(Sketcher.Constraint("Horizontal", 55, 3, 13, 2))
sketch3.addConstraint(Sketcher.Constraint("Vertical", 8, 3, 12, 3))
sketch3.addConstraint(Sketcher.Constraint("Vertical", 28, 3, 39, 3))
sketch3.addConstraint(Sketcher.Constraint("Vertical", 24, 3, 41, 3))
sketch3.addConstraint(Sketcher.Constraint("Vertical", 29, 3, 1, 1))
sketch3.addConstraint(Sketcher.Constraint("Equal", 34, 38))
sketch3.addConstraint(Sketcher.Constraint("Diameter", 20, Q("3 mm")))
sketch3.addConstraint(Sketcher.Constraint("Radius", 1, Q("1 mm")))
sketch3.addConstraint(Sketcher.Constraint("Radius", 3, Q("3 mm")))
sketch3.addConstraint(Sketcher.Constraint("DistanceX", 21, 2, 21, 1, Q("18.5 mm")))
sketch3.addConstraint(Sketcher.Constraint("DistanceY", -1, 1, 5, 3, Q("24 mm")))
sketch3.addConstraint(Sketcher.Constraint("DistanceX", -1, 1, 22, 3, Q("5 mm")))
sketch3.addConstraint(Sketcher.Constraint("DistanceY", -1, 1, 22, 3, Q("14 mm")))
sketch3.addConstraint(Sketcher.Constraint("DistanceX", 3, 2, -1, 1, Q("32 mm")))
sketch3.addConstraint(Sketcher.Constraint("DistanceY", 12, 1, -1, 1, Q("22 mm")))
sketch3.addConstraint(Sketcher.Constraint("DistanceY", 23, 2, 23, 1, Q("8.75 mm")))
sketch3.addConstraint(Sketcher.Constraint("DistanceY", 43, 3, -1, 1, Q("13.5 mm")))
sketch3.addConstraint(Sketcher.Constraint("Distance", 0, Q("21.00777 mm")))
sketch3.addConstraint(Sketcher.Constraint("DistanceX", 18, 2, 18, 1, Q("13.658005 mm")))
sketch3.addConstraint(Sketcher.Constraint("DistanceX", 49, 1, 49, 2, Q("10.421267 mm")))
pad3 = body2.newObject("PartDesign::Pad", "Pad002")
pad3.Profile = sketch3
pad3.Length = 3
pad3.Reversed = True

doc.recompute()
